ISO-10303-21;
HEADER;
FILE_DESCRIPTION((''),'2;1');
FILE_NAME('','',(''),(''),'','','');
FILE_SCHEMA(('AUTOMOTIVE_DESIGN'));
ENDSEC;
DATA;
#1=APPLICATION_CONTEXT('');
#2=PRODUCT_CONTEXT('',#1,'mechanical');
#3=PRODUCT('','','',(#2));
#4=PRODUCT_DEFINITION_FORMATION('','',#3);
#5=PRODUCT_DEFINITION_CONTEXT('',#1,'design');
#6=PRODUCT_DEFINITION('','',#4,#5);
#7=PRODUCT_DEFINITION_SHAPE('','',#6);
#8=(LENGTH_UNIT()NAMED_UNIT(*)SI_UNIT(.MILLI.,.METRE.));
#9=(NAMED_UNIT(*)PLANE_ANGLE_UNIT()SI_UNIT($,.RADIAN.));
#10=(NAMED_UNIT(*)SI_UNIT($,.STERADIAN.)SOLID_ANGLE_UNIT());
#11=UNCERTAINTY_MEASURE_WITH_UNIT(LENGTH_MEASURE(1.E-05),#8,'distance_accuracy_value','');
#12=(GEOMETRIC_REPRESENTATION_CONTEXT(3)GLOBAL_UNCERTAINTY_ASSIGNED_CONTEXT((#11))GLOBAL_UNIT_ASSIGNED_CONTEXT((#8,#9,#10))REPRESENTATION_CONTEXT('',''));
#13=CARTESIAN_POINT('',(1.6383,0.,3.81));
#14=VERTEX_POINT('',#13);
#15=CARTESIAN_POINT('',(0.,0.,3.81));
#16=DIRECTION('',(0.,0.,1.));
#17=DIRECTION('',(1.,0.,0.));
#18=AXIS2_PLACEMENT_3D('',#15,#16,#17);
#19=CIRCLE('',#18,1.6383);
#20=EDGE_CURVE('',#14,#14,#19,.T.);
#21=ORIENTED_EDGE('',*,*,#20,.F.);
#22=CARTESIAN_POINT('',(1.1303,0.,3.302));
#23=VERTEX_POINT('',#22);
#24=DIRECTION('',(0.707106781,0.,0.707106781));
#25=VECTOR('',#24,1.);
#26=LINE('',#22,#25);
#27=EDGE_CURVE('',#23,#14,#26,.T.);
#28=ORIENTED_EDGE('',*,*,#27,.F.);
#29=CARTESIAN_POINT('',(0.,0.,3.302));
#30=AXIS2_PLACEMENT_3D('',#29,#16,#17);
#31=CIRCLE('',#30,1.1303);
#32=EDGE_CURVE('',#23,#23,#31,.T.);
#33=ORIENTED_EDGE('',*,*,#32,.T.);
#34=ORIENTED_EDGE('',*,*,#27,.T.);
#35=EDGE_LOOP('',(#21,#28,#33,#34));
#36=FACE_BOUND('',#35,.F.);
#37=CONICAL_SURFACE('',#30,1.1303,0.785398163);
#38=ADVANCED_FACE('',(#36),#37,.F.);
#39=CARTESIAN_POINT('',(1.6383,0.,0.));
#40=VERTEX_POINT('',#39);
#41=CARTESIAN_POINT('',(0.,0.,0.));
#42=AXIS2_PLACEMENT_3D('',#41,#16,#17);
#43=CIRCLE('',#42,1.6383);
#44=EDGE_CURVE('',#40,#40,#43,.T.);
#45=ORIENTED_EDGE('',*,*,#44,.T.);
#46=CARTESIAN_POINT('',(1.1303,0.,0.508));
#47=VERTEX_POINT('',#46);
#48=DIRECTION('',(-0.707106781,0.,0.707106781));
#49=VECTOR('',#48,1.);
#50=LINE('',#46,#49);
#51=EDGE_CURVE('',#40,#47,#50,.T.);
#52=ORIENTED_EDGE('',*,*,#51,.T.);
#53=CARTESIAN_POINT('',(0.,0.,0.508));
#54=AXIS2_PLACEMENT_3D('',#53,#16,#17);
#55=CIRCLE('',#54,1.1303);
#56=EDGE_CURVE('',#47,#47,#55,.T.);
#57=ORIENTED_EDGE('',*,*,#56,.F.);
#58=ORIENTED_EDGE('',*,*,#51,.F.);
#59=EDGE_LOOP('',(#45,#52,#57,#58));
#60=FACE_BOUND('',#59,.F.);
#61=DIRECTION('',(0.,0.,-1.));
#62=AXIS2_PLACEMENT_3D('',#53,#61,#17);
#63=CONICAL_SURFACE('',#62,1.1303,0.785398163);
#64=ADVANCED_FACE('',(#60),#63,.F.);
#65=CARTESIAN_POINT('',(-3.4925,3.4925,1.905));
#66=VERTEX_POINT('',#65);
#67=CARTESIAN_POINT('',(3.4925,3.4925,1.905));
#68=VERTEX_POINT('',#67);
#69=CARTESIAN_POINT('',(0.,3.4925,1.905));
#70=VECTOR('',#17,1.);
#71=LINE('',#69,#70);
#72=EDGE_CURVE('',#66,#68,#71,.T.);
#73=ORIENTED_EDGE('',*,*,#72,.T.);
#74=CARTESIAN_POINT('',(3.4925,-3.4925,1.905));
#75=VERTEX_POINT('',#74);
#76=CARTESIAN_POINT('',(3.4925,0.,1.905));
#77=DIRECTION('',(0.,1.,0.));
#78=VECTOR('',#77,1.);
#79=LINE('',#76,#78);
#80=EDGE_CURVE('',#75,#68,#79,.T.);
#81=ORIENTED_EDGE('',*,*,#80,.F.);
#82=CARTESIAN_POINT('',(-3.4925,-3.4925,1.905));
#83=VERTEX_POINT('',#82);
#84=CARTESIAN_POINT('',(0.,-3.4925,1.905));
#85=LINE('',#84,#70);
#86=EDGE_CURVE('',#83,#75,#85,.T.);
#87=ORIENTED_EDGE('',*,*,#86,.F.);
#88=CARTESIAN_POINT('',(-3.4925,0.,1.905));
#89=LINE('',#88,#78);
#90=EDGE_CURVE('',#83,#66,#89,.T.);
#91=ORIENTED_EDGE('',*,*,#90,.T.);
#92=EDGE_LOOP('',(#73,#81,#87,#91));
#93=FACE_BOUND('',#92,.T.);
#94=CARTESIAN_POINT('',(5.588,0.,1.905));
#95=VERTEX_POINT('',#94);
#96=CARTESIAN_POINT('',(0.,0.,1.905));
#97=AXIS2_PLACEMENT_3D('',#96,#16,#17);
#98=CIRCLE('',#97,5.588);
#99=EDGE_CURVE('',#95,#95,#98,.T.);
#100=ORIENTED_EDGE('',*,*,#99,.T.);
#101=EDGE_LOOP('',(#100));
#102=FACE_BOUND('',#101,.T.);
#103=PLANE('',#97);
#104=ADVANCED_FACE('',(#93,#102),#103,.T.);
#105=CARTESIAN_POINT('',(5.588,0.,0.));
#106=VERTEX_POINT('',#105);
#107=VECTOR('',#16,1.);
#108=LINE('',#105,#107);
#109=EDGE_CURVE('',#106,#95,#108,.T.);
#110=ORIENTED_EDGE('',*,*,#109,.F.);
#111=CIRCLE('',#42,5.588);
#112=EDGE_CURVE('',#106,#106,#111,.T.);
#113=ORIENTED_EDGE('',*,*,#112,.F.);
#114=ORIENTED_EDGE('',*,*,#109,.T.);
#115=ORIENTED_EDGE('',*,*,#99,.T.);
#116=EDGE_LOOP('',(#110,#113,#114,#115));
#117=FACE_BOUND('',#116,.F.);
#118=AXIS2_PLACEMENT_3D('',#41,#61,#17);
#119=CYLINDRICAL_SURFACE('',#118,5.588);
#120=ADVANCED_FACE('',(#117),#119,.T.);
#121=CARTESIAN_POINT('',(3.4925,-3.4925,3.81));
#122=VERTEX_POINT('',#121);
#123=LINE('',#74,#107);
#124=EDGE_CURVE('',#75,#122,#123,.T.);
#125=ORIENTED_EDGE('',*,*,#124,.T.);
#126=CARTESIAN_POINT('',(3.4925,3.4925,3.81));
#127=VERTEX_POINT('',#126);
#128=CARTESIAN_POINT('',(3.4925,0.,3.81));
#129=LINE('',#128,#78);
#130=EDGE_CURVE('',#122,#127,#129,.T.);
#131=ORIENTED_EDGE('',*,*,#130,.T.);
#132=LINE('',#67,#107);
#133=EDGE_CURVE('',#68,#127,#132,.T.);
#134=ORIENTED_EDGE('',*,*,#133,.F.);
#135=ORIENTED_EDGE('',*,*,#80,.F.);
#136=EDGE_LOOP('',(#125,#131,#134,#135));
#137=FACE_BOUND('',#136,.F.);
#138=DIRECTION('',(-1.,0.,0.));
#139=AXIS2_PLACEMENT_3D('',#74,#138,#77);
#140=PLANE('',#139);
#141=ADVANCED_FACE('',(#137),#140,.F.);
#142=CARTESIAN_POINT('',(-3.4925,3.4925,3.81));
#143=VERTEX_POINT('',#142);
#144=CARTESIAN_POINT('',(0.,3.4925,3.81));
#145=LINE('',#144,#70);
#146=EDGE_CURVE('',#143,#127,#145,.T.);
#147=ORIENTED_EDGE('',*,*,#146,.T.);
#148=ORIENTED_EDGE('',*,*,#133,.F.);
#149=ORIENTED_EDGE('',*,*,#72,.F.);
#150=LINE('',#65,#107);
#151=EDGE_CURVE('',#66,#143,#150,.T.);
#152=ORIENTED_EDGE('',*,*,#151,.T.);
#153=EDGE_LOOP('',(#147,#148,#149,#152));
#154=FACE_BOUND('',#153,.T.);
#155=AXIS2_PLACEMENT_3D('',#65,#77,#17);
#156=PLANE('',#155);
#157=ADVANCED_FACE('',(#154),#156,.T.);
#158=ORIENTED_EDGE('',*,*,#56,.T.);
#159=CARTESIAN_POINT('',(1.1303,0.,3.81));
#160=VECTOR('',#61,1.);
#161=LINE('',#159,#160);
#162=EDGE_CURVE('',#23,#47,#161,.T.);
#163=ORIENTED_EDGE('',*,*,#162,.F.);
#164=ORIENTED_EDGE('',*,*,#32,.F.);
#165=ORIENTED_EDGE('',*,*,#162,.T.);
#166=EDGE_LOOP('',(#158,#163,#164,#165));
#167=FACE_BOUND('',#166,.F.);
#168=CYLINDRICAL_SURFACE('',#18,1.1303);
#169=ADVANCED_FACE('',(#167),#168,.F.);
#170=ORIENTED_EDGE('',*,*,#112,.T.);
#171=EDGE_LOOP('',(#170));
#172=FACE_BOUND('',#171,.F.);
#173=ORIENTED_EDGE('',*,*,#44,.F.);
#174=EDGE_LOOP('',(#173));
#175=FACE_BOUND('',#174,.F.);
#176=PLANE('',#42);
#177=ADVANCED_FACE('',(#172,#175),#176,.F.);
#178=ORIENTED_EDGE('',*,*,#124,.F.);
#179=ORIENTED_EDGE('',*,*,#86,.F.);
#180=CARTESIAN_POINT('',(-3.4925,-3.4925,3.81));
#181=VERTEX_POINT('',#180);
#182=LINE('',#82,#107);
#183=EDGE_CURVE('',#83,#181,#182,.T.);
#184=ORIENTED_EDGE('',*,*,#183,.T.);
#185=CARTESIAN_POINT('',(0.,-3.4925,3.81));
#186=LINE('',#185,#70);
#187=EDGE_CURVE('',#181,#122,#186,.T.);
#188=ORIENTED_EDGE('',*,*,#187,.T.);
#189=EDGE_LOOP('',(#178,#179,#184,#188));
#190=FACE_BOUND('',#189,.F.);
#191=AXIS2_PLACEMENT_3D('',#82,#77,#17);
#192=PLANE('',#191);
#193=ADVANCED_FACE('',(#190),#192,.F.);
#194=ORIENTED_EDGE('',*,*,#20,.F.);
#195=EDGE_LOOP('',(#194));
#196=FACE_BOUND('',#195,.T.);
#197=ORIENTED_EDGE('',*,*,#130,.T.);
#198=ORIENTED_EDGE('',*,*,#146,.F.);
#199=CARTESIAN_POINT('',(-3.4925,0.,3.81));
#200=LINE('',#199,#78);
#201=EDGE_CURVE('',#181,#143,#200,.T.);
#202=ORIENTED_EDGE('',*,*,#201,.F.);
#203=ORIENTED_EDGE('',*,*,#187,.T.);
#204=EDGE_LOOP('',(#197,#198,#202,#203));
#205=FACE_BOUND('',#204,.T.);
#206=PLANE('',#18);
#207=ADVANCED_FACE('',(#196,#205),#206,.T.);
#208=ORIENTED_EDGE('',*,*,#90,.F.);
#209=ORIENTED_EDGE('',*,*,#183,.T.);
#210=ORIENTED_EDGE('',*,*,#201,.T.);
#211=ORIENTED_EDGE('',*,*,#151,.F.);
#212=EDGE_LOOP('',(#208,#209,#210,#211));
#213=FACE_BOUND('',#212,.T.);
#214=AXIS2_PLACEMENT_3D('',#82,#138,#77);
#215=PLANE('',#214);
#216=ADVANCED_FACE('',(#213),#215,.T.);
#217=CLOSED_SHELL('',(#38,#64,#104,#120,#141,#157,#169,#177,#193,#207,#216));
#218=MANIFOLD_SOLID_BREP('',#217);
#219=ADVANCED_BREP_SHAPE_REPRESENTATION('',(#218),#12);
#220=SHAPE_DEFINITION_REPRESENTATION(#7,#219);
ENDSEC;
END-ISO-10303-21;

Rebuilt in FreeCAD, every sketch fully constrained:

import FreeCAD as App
import Part
import Sketcher

V = App.Vector
Q = App.Units.Quantity


def edges_at(feature, points):
    """Names of the edges that pass closest to the given points."""
    edges = feature.Shape.Edges
    near = lambda p: min(range(len(edges)), key=lambda i: edges[i].distToShape(Part.Vertex(*p))[0])
    return sorted({f"Edge{near(p) + 1}" for p in points})

doc = App.newDocument("Part")
body = doc.addObject("PartDesign::Body", "Body")

# Sketch on XY plane
sketch1 = doc.addObject("Sketcher::SketchObject", "Sketch")
body.addObject(sketch1)
sketch1.AttachmentSupport = (doc.XY_Plane, [""])
sketch1.MapMode = "FlatFace"
sketch1.addGeometry(Part.Circle(V(0, 0, 0), V(0, 0, 1), 6), False)
sketch1.addConstraint([
    Sketcher.Constraint("Coincident", 0, 3, -1, 1),
    Sketcher.Constraint("Diameter", 0, Q("0.44 in")),
])
pad1 = doc.addObject("PartDesign::Pad", "Pad")
body.addObject(pad1)
pad1.Profile = sketch1
pad1.Length = Q("0.075 in")

# Sketch on XY plane
sketch2 = doc.addObject("Sketcher::SketchObject", "Sketch001")
body.addObject(sketch2)
sketch2.AttachmentSupport = (doc.XY_Plane, [""])
sketch2.MapMode = "FlatFace"
sketch2.AttachmentOffset = App.Placement(V(0, 0, 0.075 * 25.4), App.Rotation())
sketch2.addGeometry([
    Part.LineSegment(V(-3, 3, 0), V(-3, -3, 0)),
    Part.LineSegment(V(-3, -3, 0), V(3, -3, 0)),
    Part.LineSegment(V(3, -3, 0), V(3, 3, 0)),
    Part.LineSegment(V(3, 3, 0), V(-3, 3, 0)),
], False)
sketch2.addConstraint([
    Sketcher.Constraint("Coincident", 0, 2, 1, 1),
    Sketcher.Constraint("Coincident", 1, 2, 2, 1),
    Sketcher.Constraint("Coincident", 2, 2, 3, 1),
    Sketcher.Constraint("Coincident", 3, 2, 0, 1),
    Sketcher.Constraint("Vertical", 0),
    Sketcher.Constraint("Horizontal", 1),
    Sketcher.Constraint("Vertical", 2),
    Sketcher.Constraint("Horizontal", 3),
    Sketcher.Constraint("Symmetric", 0, 2, 2, 2, -1, 1),
    Sketcher.Constraint("Equal", 3, 0),
    Sketcher.Constraint("DistanceX", 1, 1, 1, 2, Q("0.275 in")),
])
pad2 = doc.addObject("PartDesign::Pad", "Pad001")
body.addObject(pad2)
pad2.Profile = sketch2
pad2.Length = Q("0.075 in")

# Sketch on XY plane
sketch3 = doc.addObject("Sketcher::SketchObject", "Sketch002")
body.addObject(sketch3)
sketch3.AttachmentSupport = (doc.XY_Plane, [""])
sketch3.MapMode = "FlatFace"
sketch3.AttachmentOffset = App.Placement(V(0, 0, 0.15 * 25.4), App.Rotation())
sketch3.addGeometry(Part.Circle(V(0, 0, 0), V(0, 0, 1), 1.1), False)
sketch3.addConstraint([
    Sketcher.Constraint("Coincident", 0, 3, -1, 1),
    Sketcher.Constraint("Diameter", 0, Q("0.089 in")),
])
pocket1 = doc.addObject("PartDesign::Pocket", "Pocket")
body.addObject(pocket1)
pocket1.Profile = sketch3
pocket1.Type = "ThroughAll"
doc.recompute()

chamfer = doc.addObject("PartDesign::Chamfer", "Chamfer")
body.addObject(chamfer)
chamfer.Base = (pocket1, edges_at(pocket1, [(1.13, 0, 1.905), (-1.13, 0, 3.81), (-1.13, 0, 0)]))
chamfer.Size = Q("0.02 in")

doc.recompute()
